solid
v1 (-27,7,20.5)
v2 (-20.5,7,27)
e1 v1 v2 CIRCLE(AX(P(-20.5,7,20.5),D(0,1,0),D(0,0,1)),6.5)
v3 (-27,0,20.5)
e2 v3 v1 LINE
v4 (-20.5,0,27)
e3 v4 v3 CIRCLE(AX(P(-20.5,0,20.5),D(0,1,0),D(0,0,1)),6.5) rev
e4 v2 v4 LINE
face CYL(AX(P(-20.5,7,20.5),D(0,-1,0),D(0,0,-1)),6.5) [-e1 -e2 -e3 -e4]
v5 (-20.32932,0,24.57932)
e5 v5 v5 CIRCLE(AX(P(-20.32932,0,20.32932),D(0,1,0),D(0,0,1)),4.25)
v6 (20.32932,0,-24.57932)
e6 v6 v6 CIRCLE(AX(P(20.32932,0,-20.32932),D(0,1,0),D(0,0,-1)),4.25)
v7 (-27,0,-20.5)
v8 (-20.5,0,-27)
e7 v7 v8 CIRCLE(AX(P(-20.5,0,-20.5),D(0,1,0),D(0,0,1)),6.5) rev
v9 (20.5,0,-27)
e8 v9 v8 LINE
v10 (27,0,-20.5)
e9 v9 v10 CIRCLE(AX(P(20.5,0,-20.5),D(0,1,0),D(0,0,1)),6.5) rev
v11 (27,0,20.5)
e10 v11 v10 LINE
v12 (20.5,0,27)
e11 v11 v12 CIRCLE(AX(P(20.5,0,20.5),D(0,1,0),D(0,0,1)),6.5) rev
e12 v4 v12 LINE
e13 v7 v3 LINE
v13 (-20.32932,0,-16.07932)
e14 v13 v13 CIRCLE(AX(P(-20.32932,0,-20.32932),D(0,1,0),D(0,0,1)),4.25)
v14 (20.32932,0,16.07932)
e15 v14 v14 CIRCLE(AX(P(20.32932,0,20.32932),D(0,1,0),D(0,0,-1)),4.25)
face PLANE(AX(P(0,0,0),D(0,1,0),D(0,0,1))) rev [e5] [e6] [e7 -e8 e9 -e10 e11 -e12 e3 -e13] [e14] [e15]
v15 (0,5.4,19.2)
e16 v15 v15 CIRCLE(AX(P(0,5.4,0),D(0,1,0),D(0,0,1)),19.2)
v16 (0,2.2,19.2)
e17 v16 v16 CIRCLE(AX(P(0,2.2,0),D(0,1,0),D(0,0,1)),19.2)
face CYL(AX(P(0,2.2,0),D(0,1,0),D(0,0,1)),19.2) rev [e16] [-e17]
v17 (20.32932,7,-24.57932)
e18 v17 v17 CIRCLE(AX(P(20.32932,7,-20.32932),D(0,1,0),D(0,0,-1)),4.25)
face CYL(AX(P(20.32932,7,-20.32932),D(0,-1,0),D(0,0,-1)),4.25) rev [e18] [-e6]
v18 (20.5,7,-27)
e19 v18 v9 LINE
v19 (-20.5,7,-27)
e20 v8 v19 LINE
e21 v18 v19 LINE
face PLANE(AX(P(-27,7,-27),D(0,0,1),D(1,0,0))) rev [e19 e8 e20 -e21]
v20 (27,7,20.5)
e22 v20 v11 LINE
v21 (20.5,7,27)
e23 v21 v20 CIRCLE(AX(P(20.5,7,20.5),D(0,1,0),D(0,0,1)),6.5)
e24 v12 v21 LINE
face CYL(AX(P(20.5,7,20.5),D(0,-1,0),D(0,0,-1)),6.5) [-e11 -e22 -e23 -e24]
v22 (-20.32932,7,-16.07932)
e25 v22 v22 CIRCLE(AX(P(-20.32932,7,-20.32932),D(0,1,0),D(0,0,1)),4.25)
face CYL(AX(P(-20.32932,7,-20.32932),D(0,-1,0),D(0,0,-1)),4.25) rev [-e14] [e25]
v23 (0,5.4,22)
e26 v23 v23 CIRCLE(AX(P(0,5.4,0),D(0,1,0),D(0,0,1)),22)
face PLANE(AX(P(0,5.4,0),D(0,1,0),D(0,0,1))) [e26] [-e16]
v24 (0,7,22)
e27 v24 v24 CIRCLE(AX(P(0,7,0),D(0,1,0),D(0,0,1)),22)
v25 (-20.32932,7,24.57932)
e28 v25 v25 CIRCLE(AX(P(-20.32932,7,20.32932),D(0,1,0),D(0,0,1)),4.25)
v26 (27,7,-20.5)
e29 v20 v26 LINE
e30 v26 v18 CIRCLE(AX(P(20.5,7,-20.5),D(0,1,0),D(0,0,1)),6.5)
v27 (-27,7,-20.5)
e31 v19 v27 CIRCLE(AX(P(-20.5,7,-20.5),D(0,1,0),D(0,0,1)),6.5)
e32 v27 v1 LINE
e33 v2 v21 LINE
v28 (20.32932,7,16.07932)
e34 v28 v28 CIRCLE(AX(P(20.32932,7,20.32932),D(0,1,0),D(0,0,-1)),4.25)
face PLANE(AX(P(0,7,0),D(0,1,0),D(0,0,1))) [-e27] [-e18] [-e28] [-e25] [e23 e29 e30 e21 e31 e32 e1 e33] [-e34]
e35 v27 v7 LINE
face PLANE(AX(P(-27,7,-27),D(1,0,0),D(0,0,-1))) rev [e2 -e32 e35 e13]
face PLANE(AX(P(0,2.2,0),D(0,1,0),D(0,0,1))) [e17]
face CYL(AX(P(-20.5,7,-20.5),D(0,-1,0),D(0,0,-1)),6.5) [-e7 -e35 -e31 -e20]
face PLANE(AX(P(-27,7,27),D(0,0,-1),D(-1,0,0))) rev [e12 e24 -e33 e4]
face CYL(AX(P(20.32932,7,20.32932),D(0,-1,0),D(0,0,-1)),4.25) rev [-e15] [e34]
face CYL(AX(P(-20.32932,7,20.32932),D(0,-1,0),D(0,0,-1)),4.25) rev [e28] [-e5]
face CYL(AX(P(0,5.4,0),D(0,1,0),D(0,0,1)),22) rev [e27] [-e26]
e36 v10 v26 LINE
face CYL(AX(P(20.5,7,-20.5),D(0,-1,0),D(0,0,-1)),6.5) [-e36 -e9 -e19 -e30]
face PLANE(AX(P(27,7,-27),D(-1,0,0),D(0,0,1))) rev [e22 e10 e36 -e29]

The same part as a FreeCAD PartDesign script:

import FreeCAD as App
import Part
import Sketcher

V = App.Vector


def edges_at(feature, points):
    """Names of the edges that pass closest to the given points."""
    edges = feature.Shape.Edges
    near = lambda p: min(range(len(edges)), key=lambda i: edges[i].distToShape(Part.Vertex(*p))[0])
    return sorted({f"Edge{near(p) + 1}" for p in points})

doc = App.newDocument("Part")
params = doc.addObject("Spreadsheet::Sheet", "Params")
for row, (alias, value) in enumerate([
    ("sketch1_diameter", "8.5 mm"),
    ("sketch1_width", "54 mm"),
    ("pad1_length", "7 mm"),
    ("fillet_radius", "6.5 mm"),
    ("sketch2_diameter", "44 mm"),
    ("pocket1_length", "1.6 mm"),
    ("sketch3_diameter", "38.4 mm"),
    ("pocket2_length", "3.2 mm"),
], start=1):
    params.set(f"A{row}", alias)
    params.set(f"B{row}", "=" + value)
    params.setAlias(f"B{row}", alias)

body = doc.addObject("PartDesign::Body", "Body")

# Sketch on XZ plane
sketch1 = body.newObject("Sketcher::SketchObject", "Sketch")
sketch1.AttachmentSupport = (doc.getObject("XZ_Plane"), [""])
sketch1.MapMode = "FlatFace"
sketch1.addGeometry([
    Part.LineSegment(V(-27, -27, 0), V(-27, 27, 0)),  # 0
    Part.LineSegment(V(-27, 27, 0), V(27, 27, 0)),  # 1
    Part.LineSegment(V(27, 27, 0), V(27, -27, 0)),  # 2
    Part.LineSegment(V(27, -27, 0), V(-27, -27, 0)),  # 3
    Part.Circle(V(-20.3, 20.3, 0), V(0, 0, 1), 4.2),  # 4
    Part.Circle(V(20.3, 20.3, 0), V(0, 0, 1), 4.2),  # 5
    Part.Circle(V(-20.3, -20.3, 0), V(0, 0, 1), 4.2),  # 6
    Part.Circle(V(20.3, -20.3, 0), V(0, 0, 1), 4.2),  # 7
], False)
sketch1.addConstraint([
    Sketcher.Constraint("Coincident", 0, 2, 1, 1),
    Sketcher.Constraint("Coincident", 1, 2, 2, 1),
    Sketcher.Constraint("Coincident", 2, 2, 3, 1),
    Sketcher.Constraint("Coincident", 3, 2, 0, 1),
    Sketcher.Constraint("Vertical", 0),
    Sketcher.Constraint("Horizontal", 1),
    Sketcher.Constraint("Vertical", 2),
    Sketcher.Constraint("Horizontal", 3),
    Sketcher.Constraint("Equal", 4, 5),
    Sketcher.Constraint("Equal", 5, 6),
    Sketcher.Constraint("Equal", 6, 7),
    Sketcher.Constraint("Symmetric", 5, 3, 6, 3, -1, 1),
    Sketcher.Constraint("Symmetric", 4, 3, 7, 3, -1, 1),
    Sketcher.Constraint("Symmetric", 0, 2, 2, 2, -1, 1),
    Sketcher.Constraint("Symmetric", 4, 3, 5, 3, -2),
    Sketcher.Constraint("Equal", 3, 0),
    Sketcher.Constraint("Diameter", 4, 8.5),
    Sketcher.Constraint("DistanceX", 1, 1, 1, 2, 54.0),
    Sketcher.Constraint("DistanceX", 4, 3, -1, 1, 20.32932),
    Sketcher.Constraint("DistanceY", -1, 1, 4, 3, 20.32932),
])
sketch1.setExpression("Constraints[16]", "Params.sketch1_diameter")
sketch1.setExpression("Constraints[17]", "Params.sketch1_width")
pad1 = body.newObject("PartDesign::Pad", "Pad")
pad1.Profile = sketch1
pad1.setExpression("Length", "Params.pad1_length")
pad1.Reversed = True
doc.recompute()

fillet = body.newObject("PartDesign::Fillet", "Fillet")
fillet.Base = (pad1, edges_at(pad1, [
    (27, 3.5, 27),
    (-27, 3.5, 27),
    (-27, 3.5, -27),
    (27, 3.5, -27),
]))
fillet.setExpression("Radius", "Params.fillet_radius")

# Sketch on XZ plane
sketch2 = body.newObject("Sketcher::SketchObject", "Sketch001")
sketch2.AttachmentSupport = (doc.getObject("XZ_Plane"), [""])
sketch2.MapMode = "FlatFace"
sketch2.AttachmentOffset = App.Placement(V(0, 0, -7), App.Rotation())
sketch2.addGeometry(Part.Circle(V(0, 0, 0), V(0, 0, 1), 22), False)
sketch2.addConstraint([
    Sketcher.Constraint("Coincident", 0, 3, -1, 1),
    Sketcher.Constraint("Diameter", 0, 44.0),
])
sketch2.setExpression("Constraints[1]", "Params.sketch2_diameter")
pocket1 = body.newObject("PartDesign::Pocket", "Pocket")
pocket1.Profile = sketch2
pocket1.setExpression("Length", "Params.pocket1_length")
pocket1.Reversed = True

# Sketch on XZ plane
sketch3 = body.newObject("Sketcher::SketchObject", "Sketch002")
sketch3.AttachmentSupport = (doc.getObject("XZ_Plane"), [""])
sketch3.MapMode = "FlatFace"
sketch3.AttachmentOffset = App.Placement(V(0, 0, -5.4), App.Rotation())
sketch3.addGeometry(Part.Circle(V(0, 0, 0), V(0, 0, 1), 19), False)
sketch3.addConstraint([
    Sketcher.Constraint("Coincident", 0, 3, -1, 1),
    Sketcher.Constraint("Diameter", 0, 38.4),
])
sketch3.setExpression("Constraints[1]", "Params.sketch3_diameter")
pocket2 = body.newObject("PartDesign::Pocket", "Pocket001")
pocket2.Profile = sketch3
pocket2.setExpression("Length", "Params.pocket2_length")
pocket2.Reversed = True

doc.recompute()
